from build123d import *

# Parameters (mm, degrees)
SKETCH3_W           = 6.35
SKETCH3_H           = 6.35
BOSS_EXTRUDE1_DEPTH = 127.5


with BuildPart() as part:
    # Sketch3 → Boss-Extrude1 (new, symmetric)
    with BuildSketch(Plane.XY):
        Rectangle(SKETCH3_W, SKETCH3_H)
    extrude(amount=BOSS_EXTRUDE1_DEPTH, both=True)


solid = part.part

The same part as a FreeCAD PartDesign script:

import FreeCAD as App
import Part
import Sketcher
Q = App.Units.Quantity


def add_polygon(sketch, points):
    """Adds a closed chain of lines whose ends are joined by coincident constraints."""
    first, n = sketch.GeometryCount, len(points)
    for a, b in zip(points, points[1:] + points[:1]):
        sketch.addGeometry(Part.LineSegment(App.Vector(*a, 0), App.Vector(*b, 0)), False)
    for i in range(n):
        sketch.addConstraint(Sketcher.Constraint("Coincident", first + i, 2, first + (i + 1) % n, 1))

doc = App.newDocument("Part")
body = doc.addObject("PartDesign::Body", "Body")

# Sketch on XY plane
sketch1 = doc.addObject("Sketcher::SketchObject", "Sketch")
body.addObject(sketch1)
sketch1.AttachmentSupport = (doc.XY_Plane, [""])
sketch1.MapMode = "FlatFace"
add_polygon(sketch1, [(-3, 3), (-3, -3), (3, -3), (3, 3)])  # lines 0-3
sketch1.addConstraint([
    Sketcher.Constraint("Vertical", 0),
    Sketcher.Constraint("Horizontal", 1),
    Sketcher.Constraint("Vertical", 2),
    Sketcher.Constraint("Horizontal", 3),
    Sketcher.Constraint("Symmetric", 0, 2, 2, 2, -1, 1),
    Sketcher.Constraint("Equal", 3, 0),
    Sketcher.Constraint("DistanceX", 1, 1, 1, 2, Q("6.35 mm")),
])
pad1 = doc.addObject("PartDesign::Pad", "Pad")
body.addObject(pad1)
pad1.Profile = sketch1
pad1.Length = 255
pad1.Midplane = True

doc.recompute()
